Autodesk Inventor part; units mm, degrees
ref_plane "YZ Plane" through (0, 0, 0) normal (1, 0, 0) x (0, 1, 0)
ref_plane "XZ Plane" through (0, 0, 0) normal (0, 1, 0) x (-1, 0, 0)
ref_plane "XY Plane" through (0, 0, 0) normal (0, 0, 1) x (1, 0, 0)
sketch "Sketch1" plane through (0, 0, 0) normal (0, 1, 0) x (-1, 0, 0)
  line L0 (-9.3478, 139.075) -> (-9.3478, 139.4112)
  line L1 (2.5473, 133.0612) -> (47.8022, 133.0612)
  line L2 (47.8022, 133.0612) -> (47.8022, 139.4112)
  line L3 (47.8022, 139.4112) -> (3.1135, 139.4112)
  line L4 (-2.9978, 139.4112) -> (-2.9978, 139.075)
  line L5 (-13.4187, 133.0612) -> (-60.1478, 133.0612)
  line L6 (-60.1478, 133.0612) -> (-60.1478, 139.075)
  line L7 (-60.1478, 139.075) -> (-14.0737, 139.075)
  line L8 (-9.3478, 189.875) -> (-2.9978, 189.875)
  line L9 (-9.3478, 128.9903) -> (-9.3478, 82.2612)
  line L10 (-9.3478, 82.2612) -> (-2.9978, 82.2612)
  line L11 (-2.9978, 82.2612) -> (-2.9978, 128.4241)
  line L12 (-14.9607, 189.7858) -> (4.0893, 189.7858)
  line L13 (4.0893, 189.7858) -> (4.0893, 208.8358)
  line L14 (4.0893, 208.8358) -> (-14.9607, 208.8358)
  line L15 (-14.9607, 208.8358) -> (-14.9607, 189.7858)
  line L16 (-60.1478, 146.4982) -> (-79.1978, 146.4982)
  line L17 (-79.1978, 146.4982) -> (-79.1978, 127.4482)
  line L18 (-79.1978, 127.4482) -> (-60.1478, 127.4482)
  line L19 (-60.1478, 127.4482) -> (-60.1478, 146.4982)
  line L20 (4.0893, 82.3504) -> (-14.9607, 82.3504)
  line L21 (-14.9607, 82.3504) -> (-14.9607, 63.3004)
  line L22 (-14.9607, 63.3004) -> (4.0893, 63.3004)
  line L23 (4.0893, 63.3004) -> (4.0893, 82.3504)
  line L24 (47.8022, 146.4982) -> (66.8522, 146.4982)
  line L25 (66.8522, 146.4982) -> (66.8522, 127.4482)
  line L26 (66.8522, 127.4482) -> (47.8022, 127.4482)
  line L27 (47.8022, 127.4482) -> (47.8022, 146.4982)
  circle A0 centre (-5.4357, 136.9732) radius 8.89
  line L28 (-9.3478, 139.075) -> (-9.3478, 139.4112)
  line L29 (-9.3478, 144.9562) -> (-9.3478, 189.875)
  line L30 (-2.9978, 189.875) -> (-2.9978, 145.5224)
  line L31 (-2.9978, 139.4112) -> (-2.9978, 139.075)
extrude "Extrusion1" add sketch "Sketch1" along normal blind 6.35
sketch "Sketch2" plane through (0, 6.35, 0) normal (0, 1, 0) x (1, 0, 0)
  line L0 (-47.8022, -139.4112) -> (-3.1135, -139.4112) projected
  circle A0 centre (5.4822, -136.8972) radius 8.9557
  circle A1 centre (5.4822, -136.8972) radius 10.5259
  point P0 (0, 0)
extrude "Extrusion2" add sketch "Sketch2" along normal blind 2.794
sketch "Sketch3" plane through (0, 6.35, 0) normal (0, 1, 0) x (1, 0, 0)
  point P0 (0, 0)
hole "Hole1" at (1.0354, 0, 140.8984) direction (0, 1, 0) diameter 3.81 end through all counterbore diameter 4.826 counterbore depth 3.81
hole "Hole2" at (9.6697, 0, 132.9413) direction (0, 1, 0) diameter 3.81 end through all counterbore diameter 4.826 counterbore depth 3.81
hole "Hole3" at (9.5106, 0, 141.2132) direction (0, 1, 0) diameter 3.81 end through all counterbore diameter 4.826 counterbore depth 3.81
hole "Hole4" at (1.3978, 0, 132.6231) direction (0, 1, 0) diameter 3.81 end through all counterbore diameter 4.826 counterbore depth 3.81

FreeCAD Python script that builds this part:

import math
import FreeCAD as App
import Part
import Sketcher
Q = App.Units.Quantity

doc = App.newDocument("Part")
params = doc.addObject("Spreadsheet::Sheet", "Params")
for row, (alias, value) in enumerate([
    ("sketch1_radius", "0.35 in"),
    ("sketch1_width", "0.75 in"),
    ("pad1_length", "0.25 in"),
    ("pad2_length", "0.11 in"),
    ("sketch3_diameter", "0.15 in"),
    ("hole_diameter", "0.15 in"),
    ("hole_cbore_diameter", "0.19 in"),
    ("hole_cbore_depth", "0.15 in"),
    ("sketch4_diameter", "0.15 in"),
    ("hole2_diameter", "0.15 in"),
    ("hole2_cbore_diameter", "0.19 in"),
    ("hole2_cbore_depth", "0.15 in"),
    ("sketch5_diameter", "0.15 in"),
    ("hole3_diameter", "0.15 in"),
    ("hole3_cbore_diameter", "0.19 in"),
    ("hole3_cbore_depth", "0.15 in"),
    ("sketch6_diameter", "0.15 in"),
    ("hole4_diameter", "0.15 in"),
    ("hole4_cbore_diameter", "0.19 in"),
    ("hole4_cbore_depth", "0.15 in"),
], start=1):
    params.set(f"A{row}", alias)
    params.set(f"B{row}", "=" + value)
    params.setAlias(f"B{row}", alias)

body = doc.addObject("PartDesign::Body", "Body")

# Sketch on XZ plane
sketch1 = doc.addObject("Sketcher::SketchObject", "Sketch")
body.addObject(sketch1)
sketch1.AttachmentSupport = (doc.XZ_Plane, [""])
sketch1.MapMode = "FlatFace"
sketch1.addGeometry([
    Part.LineSegment(App.Vector(-48, 139, 0), App.Vector(-3, 139, 0)),  # 0
    Part.ArcOfCircle(Part.Circle(App.Vector(5, 137, 0), App.Vector(0, 0, 1), 9), math.radians(106), math.radians(164)),  # 1
    Part.LineSegment(App.Vector(3, 146, 0), App.Vector(3, 190, 0)),  # 2
    Part.LineSegment(App.Vector(3, 190, 0), App.Vector(-4, 190, 0)),  # 3
    Part.LineSegment(App.Vector(-4, 190, 0), App.Vector(-4, 209, 0)),  # 4
    Part.LineSegment(App.Vector(-4, 209, 0), App.Vector(15, 209, 0)),  # 5
    Part.LineSegment(App.Vector(15, 209, 0), App.Vector(15, 190, 0)),  # 6
    Part.LineSegment(App.Vector(15, 190, 0), App.Vector(9, 190, 0)),  # 7
    Part.LineSegment(App.Vector(9, 190, 0), App.Vector(9, 145, 0)),  # 8
    Part.ArcOfCircle(Part.Circle(App.Vector(5, 137, 0), App.Vector(0, 0, 1), 9), math.radians(14), math.radians(64)),  # 9
    Part.LineSegment(App.Vector(14, 139, 0), App.Vector(60, 139, 0)),  # 10
    Part.LineSegment(App.Vector(60, 139, 0), App.Vector(60, 146, 0)),  # 11
    Part.LineSegment(App.Vector(60, 146, 0), App.Vector(79, 146, 0)),  # 12
    Part.LineSegment(App.Vector(79, 146, 0), App.Vector(79, 127, 0)),  # 13
    Part.LineSegment(App.Vector(79, 127, 0), App.Vector(60, 127, 0)),  # 14
    Part.LineSegment(App.Vector(60, 127, 0), App.Vector(60, 133, 0)),  # 15
    Part.LineSegment(App.Vector(60, 133, 0), App.Vector(13, 133, 0)),  # 16
    Part.ArcOfCircle(Part.Circle(App.Vector(5, 137, 0), App.Vector(0, 0, 1), 9), math.radians(-64), math.radians(-26)),  # 17
    Part.LineSegment(App.Vector(9, 129, 0), App.Vector(9, 82, 0)),  # 18
    Part.LineSegment(App.Vector(9, 82, 0), App.Vector(15, 82, 0)),  # 19
    Part.LineSegment(App.Vector(15, 82, 0), App.Vector(15, 63, 0)),  # 20
    Part.LineSegment(App.Vector(15, 63, 0), App.Vector(-4, 63, 0)),  # 21
    Part.LineSegment(App.Vector(-4, 63, 0), App.Vector(-4, 82, 0)),  # 22
    Part.LineSegment(App.Vector(-4, 82, 0), App.Vector(3, 82, 0)),  # 23
    Part.LineSegment(App.Vector(3, 82, 0), App.Vector(3, 128, 0)),  # 24
    Part.ArcOfCircle(Part.Circle(App.Vector(5, 137, 0), App.Vector(0, 0, 1), 9), math.radians(-154), math.radians(-106)),  # 25
    Part.LineSegment(App.Vector(-3, 133, 0), App.Vector(-48, 133, 0)),  # 26
    Part.LineSegment(App.Vector(-48, 133, 0), App.Vector(-48, 127, 0)),  # 27
    Part.LineSegment(App.Vector(-48, 127, 0), App.Vector(-67, 127, 0)),  # 28
    Part.LineSegment(App.Vector(-67, 127, 0), App.Vector(-67, 146, 0)),  # 29
    Part.LineSegment(App.Vector(-67, 146, 0), App.Vector(-48, 146, 0)),  # 30
    Part.LineSegment(App.Vector(-48, 146, 0), App.Vector(-48, 139, 0)),  # 31
], False)
sketch1.addConstraint([
    Sketcher.Constraint("Coincident", 0, 2, 1, 2),
    Sketcher.Constraint("Coincident", 1, 1, 2, 1),
    Sketcher.Constraint("Coincident", 2, 2, 3, 1),
    Sketcher.Constraint("Coincident", 3, 2, 4, 1),
    Sketcher.Constraint("Coincident", 4, 2, 5, 1),
    Sketcher.Constraint("Coincident", 5, 2, 6, 1),
    Sketcher.Constraint("Coincident", 6, 2, 7, 1),
    Sketcher.Constraint("Coincident", 7, 2, 8, 1),
    Sketcher.Constraint("Coincident", 8, 2, 9, 2),
    Sketcher.Constraint("Coincident", 9, 1, 10, 1),
    Sketcher.Constraint("Coincident", 10, 2, 11, 1),
    Sketcher.Constraint("Coincident", 11, 2, 12, 1),
    Sketcher.Constraint("Coincident", 12, 2, 13, 1),
    Sketcher.Constraint("Coincident", 13, 2, 14, 1),
    Sketcher.Constraint("Coincident", 14, 2, 15, 1),
    Sketcher.Constraint("Coincident", 15, 2, 16, 1),
    Sketcher.Constraint("Coincident", 16, 2, 17, 2),
    Sketcher.Constraint("Coincident", 17, 1, 18, 1),
    Sketcher.Constraint("Coincident", 18, 2, 19, 1),
    Sketcher.Constraint("Coincident", 19, 2, 20, 1),
    Sketcher.Constraint("Coincident", 20, 2, 21, 1),
    Sketcher.Constraint("Coincident", 21, 2, 22, 1),
    Sketcher.Constraint("Coincident", 22, 2, 23, 1),
    Sketcher.Constraint("Coincident", 23, 2, 24, 1),
    Sketcher.Constraint("Coincident", 24, 2, 25, 2),
    Sketcher.Constraint("Coincident", 25, 1, 26, 1),
    Sketcher.Constraint("Coincident", 26, 2, 27, 1),
    Sketcher.Constraint("Coincident", 27, 2, 28, 1),
    Sketcher.Constraint("Coincident", 28, 2, 29, 1),
    Sketcher.Constraint("Coincident", 29, 2, 30, 1),
    Sketcher.Constraint("Coincident", 30, 2, 31, 1),
    Sketcher.Constraint("Coincident", 31, 2, 0, 1),
    Sketcher.Constraint("Horizontal", 0),
    Sketcher.Constraint("Vertical", 2),
    Sketcher.Constraint("Horizontal", 3),
    Sketcher.Constraint("Vertical", 4),
    Sketcher.Constraint("Horizontal", 5),
    Sketcher.Constraint("Vertical", 6),
    Sketcher.Constraint("Horizontal", 7),
    Sketcher.Constraint("Vertical", 8),
    Sketcher.Constraint("Horizontal", 10),
    Sketcher.Constraint("Vertical", 11),
    Sketcher.Constraint("Horizontal", 12),
    Sketcher.Constraint("Vertical", 13),
    Sketcher.Constraint("Horizontal", 14),
    Sketcher.Constraint("Vertical", 15),
    Sketcher.Constraint("Horizontal", 16),
    Sketcher.Constraint("Vertical", 18),
    Sketcher.Constraint("Horizontal", 19),
    Sketcher.Constraint("Vertical", 20),
    Sketcher.Constraint("Horizontal", 21),
    Sketcher.Constraint("Vertical", 22),
    Sketcher.Constraint("Horizontal", 23),
    Sketcher.Constraint("Vertical", 24),
    Sketcher.Constraint("Horizontal", 26),
    Sketcher.Constraint("Vertical", 27),
    Sketcher.Constraint("Horizontal", 28),
    Sketcher.Constraint("Vertical", 29),
    Sketcher.Constraint("Horizontal", 30),
    Sketcher.Constraint("Vertical", 31),
    Sketcher.Constraint("Coincident", 9, 3, 1, 3),
    Sketcher.Constraint("Coincident", 17, 3, 1, 3),
    Sketcher.Constraint("Coincident", 25, 3, 1, 3),
    Sketcher.Constraint("Equal", 1, 9),
    Sketcher.Constraint("Equal", 9, 17),
    Sketcher.Constraint("Equal", 17, 25),
    Sketcher.Constraint("Horizontal", 3, 2, 6, 2),
    Sketcher.Constraint("Horizontal", 19, 2, 22, 2),
    Sketcher.Constraint("Horizontal", 16, 2, 25, 1),
    Sketcher.Constraint("Horizontal", 14, 2, 27, 2),
    Sketcher.Constraint("Horizontal", 12, 2, 29, 2),
    Sketcher.Constraint("Vertical", 11, 2, 14, 2),
    Sketcher.Constraint("Vertical", 8, 2, 17, 1),
    Sketcher.Constraint("Vertical", 6, 2, 19, 2),
    Sketcher.Constraint("Vertical", 4, 2, 21, 2),
    Sketcher.Constraint("Vertical", 2, 2, 23, 2),
    Sketcher.Constraint("Vertical", 27, 2, 30, 2),
    Sketcher.Constraint("Equal", 5, 12),
    Sketcher.Constraint("Equal", 21, 28),
    Sketcher.Constraint("Equal", 30, 4),
    Sketcher.Constraint("Equal", 6, 13),
    Sketcher.Constraint("Equal", 19, 15),
    Sketcher.Constraint("Equal", 13, 20),
    Sketcher.Constraint("Equal", 23, 31),
    Sketcher.Constraint("Radius", 1, Q("0.35 in")),
    Sketcher.Constraint("DistanceX", 8, 2, 10, 2, Q("2 in")),
    Sketcher.Constraint("DistanceX", 26, 2, 24, 2, Q("2 in")),
    Sketcher.Constraint("DistanceX", 5, 1, 5, 2, Q("0.75 in")),
    Sketcher.Constraint("DistanceX", 2, 2, 7, 2, Q("0.25 in")),
    Sketcher.Constraint("DistanceX", 0, 1, 0, 2, Q("1.7594 in")),
    Sketcher.Constraint("DistanceX", 26, 2, 26, 1, Q("1.7817 in")),
    Sketcher.Constraint("DistanceX", -1, 1, 1, 3, Q("0.214 in")),
    Sketcher.Constraint("DistanceX", 3, 2, -1, 1, Q("0.161 in")),
    Sketcher.Constraint("DistanceX", 10, 1, 10, 2, 46.074),
    Sketcher.Constraint("DistanceY", 2, 1, 2, 2, 44.2634),
    Sketcher.Constraint("DistanceY", 18, 2, 18, 1, 46.64),
    Sketcher.Constraint("DistanceY", -1, 1, 9, 1, Q("5.4754 in")),
])
sketch1.setExpression("Constraints[84]", "Params.sketch1_radius")
sketch1.setExpression("Constraints[87]", "Params.sketch1_width")
pad1 = doc.addObject("PartDesign::Pad", "Pad")
body.addObject(pad1)
pad1.Profile = sketch1
pad1.setExpression("Length", "Params.pad1_length")
pad1.Reversed = True

# Sketch on XZ plane
sketch2 = doc.addObject("Sketcher::SketchObject", "Sketch001")
body.addObject(sketch2)
sketch2.AttachmentSupport = (doc.XZ_Plane, [""])
sketch2.MapMode = "FlatFace"
sketch2.AttachmentOffset = App.Placement(App.Vector(0, 0, -0.25 * 25.4), App.Rotation())
sketch2.addGeometry([
    Part.Circle(App.Vector(5, 137, 0), App.Vector(0, 0, 1), 11),
    Part.Circle(App.Vector(5, 137, 0), App.Vector(0, 0, 1), 9),
], False)
sketch2.addConstraint([
    Sketcher.Constraint("Coincident", 1, 3, 0, 3),
    Sketcher.Constraint("Diameter", 0, Q("0.8288 in")),
    Sketcher.Constraint("Diameter", 1, 17.9114),
    Sketcher.Constraint("DistanceX", -1, 1, 0, 3, 5.4822),
    Sketcher.Constraint("DistanceY", -1, 1, 0, 3, 136.8972),
])
pad2 = doc.addObject("PartDesign::Pad", "Pad001")
body.addObject(pad2)
pad2.Profile = sketch2
pad2.setExpression("Length", "Params.pad2_length")
pad2.Reversed = True

# Sketch on XZ plane
sketch3 = doc.addObject("Sketcher::SketchObject", "Sketch002")
body.addObject(sketch3)
sketch3.AttachmentSupport = (doc.XZ_Plane, [""])
sketch3.MapMode = "FlatFace"
sketch3.addGeometry(Part.Circle(App.Vector(1, 140.9, 0), App.Vector(0, 0, 1), 1.9), False)
sketch3.addConstraint([
    Sketcher.Constraint("Diameter", 0, Q("0.15 in")),
    Sketcher.Constraint("DistanceX", -1, 1, 0, 3, 1.0354),
    Sketcher.Constraint("DistanceY", -1, 1, 0, 3, 140.8984),
])
sketch3.setExpression("Constraints[0]", "Params.sketch3_diameter")
doc.recompute()
hole = doc.addObject("PartDesign::Hole", "Hole")
body.addObject(hole)
hole.Profile = sketch3
hole.ThreadType = "None"
hole.setExpression("Diameter", "Params.hole_diameter")
hole.DepthType = "ThroughAll"
hole.HoleCutType = "Counterbore"
hole.setExpression("HoleCutDiameter", "Params.hole_cbore_diameter")
hole.setExpression("HoleCutDepth", "Params.hole_cbore_depth")

# Sketch on XZ plane
sketch4 = doc.addObject("Sketcher::SketchObject", "Sketch003")
body.addObject(sketch4)
sketch4.AttachmentSupport = (doc.XZ_Plane, [""])
sketch4.MapMode = "FlatFace"
sketch4.addGeometry(Part.Circle(App.Vector(9.7, 132.9, 0), App.Vector(0, 0, 1), 1.9), False)
sketch4.addConstraint([
    Sketcher.Constraint("Diameter", 0, Q("0.15 in")),
    Sketcher.Constraint("DistanceX", -1, 1, 0, 3, Q("0.3807 in")),
    Sketcher.Constraint("DistanceY", -1, 1, 0, 3, Q("5.2339 in")),
])
sketch4.setExpression("Constraints[0]", "Params.sketch4_diameter")
doc.recompute()
hole2 = doc.addObject("PartDesign::Hole", "Hole001")
body.addObject(hole2)
hole2.Profile = sketch4
hole2.ThreadType = "None"
hole2.setExpression("Diameter", "Params.hole2_diameter")
hole2.DepthType = "ThroughAll"
hole2.HoleCutType = "Counterbore"
hole2.setExpression("HoleCutDiameter", "Params.hole2_cbore_diameter")
hole2.setExpression("HoleCutDepth", "Params.hole2_cbore_depth")

# Sketch on XZ plane
sketch5 = doc.addObject("Sketcher::SketchObject", "Sketch004")
body.addObject(sketch5)
sketch5.AttachmentSupport = (doc.XZ_Plane, [""])
sketch5.MapMode = "FlatFace"
sketch5.addGeometry(Part.Circle(App.Vector(9.5, 141.2, 0), App.Vector(0, 0, 1), 1.9), False)
sketch5.addConstraint([
    Sketcher.Constraint("Diameter", 0, Q("0.15 in")),
    Sketcher.Constraint("DistanceX", -1, 1, 0, 3, 9.5106),
    Sketcher.Constraint("DistanceY", -1, 1, 0, 3, 141.2132),
])
sketch5.setExpression("Constraints[0]", "Params.sketch5_diameter")
doc.recompute()
hole3 = doc.addObject("PartDesign::Hole", "Hole002")
body.addObject(hole3)
hole3.Profile = sketch5
hole3.ThreadType = "None"
hole3.setExpression("Diameter", "Params.hole3_diameter")
hole3.DepthType = "ThroughAll"
hole3.HoleCutType = "Counterbore"
hole3.setExpression("HoleCutDiameter", "Params.hole3_cbore_diameter")
hole3.setExpression("HoleCutDepth", "Params.hole3_cbore_depth")

# Sketch on XZ plane
sketch6 = doc.addObject("Sketcher::SketchObject", "Sketch005")
body.addObject(sketch6)
sketch6.AttachmentSupport = (doc.XZ_Plane, [""])
sketch6.MapMode = "FlatFace"
sketch6.addGeometry(Part.Circle(App.Vector(1.4, 132.6, 0), App.Vector(0, 0, 1), 1.9), False)
sketch6.addConstraint([
    Sketcher.Constraint("Diameter", 0, Q("0.15 in")),
    Sketcher.Constraint("DistanceX", -1, 1, 0, 3, 1.3978),
    Sketcher.Constraint("DistanceY", -1, 1, 0, 3, 132.623),
])
sketch6.setExpression("Constraints[0]", "Params.sketch6_diameter")
doc.recompute()
hole4 = doc.addObject("PartDesign::Hole", "Hole003")
body.addObject(hole4)
hole4.Profile = sketch6
hole4.ThreadType = "None"
hole4.setExpression("Diameter", "Params.hole4_diameter")
hole4.DepthType = "ThroughAll"
hole4.HoleCutType = "Counterbore"
hole4.setExpression("HoleCutDiameter", "Params.hole4_cbore_diameter")
hole4.setExpression("HoleCutDepth", "Params.hole4_cbore_depth")

doc.recompute()
